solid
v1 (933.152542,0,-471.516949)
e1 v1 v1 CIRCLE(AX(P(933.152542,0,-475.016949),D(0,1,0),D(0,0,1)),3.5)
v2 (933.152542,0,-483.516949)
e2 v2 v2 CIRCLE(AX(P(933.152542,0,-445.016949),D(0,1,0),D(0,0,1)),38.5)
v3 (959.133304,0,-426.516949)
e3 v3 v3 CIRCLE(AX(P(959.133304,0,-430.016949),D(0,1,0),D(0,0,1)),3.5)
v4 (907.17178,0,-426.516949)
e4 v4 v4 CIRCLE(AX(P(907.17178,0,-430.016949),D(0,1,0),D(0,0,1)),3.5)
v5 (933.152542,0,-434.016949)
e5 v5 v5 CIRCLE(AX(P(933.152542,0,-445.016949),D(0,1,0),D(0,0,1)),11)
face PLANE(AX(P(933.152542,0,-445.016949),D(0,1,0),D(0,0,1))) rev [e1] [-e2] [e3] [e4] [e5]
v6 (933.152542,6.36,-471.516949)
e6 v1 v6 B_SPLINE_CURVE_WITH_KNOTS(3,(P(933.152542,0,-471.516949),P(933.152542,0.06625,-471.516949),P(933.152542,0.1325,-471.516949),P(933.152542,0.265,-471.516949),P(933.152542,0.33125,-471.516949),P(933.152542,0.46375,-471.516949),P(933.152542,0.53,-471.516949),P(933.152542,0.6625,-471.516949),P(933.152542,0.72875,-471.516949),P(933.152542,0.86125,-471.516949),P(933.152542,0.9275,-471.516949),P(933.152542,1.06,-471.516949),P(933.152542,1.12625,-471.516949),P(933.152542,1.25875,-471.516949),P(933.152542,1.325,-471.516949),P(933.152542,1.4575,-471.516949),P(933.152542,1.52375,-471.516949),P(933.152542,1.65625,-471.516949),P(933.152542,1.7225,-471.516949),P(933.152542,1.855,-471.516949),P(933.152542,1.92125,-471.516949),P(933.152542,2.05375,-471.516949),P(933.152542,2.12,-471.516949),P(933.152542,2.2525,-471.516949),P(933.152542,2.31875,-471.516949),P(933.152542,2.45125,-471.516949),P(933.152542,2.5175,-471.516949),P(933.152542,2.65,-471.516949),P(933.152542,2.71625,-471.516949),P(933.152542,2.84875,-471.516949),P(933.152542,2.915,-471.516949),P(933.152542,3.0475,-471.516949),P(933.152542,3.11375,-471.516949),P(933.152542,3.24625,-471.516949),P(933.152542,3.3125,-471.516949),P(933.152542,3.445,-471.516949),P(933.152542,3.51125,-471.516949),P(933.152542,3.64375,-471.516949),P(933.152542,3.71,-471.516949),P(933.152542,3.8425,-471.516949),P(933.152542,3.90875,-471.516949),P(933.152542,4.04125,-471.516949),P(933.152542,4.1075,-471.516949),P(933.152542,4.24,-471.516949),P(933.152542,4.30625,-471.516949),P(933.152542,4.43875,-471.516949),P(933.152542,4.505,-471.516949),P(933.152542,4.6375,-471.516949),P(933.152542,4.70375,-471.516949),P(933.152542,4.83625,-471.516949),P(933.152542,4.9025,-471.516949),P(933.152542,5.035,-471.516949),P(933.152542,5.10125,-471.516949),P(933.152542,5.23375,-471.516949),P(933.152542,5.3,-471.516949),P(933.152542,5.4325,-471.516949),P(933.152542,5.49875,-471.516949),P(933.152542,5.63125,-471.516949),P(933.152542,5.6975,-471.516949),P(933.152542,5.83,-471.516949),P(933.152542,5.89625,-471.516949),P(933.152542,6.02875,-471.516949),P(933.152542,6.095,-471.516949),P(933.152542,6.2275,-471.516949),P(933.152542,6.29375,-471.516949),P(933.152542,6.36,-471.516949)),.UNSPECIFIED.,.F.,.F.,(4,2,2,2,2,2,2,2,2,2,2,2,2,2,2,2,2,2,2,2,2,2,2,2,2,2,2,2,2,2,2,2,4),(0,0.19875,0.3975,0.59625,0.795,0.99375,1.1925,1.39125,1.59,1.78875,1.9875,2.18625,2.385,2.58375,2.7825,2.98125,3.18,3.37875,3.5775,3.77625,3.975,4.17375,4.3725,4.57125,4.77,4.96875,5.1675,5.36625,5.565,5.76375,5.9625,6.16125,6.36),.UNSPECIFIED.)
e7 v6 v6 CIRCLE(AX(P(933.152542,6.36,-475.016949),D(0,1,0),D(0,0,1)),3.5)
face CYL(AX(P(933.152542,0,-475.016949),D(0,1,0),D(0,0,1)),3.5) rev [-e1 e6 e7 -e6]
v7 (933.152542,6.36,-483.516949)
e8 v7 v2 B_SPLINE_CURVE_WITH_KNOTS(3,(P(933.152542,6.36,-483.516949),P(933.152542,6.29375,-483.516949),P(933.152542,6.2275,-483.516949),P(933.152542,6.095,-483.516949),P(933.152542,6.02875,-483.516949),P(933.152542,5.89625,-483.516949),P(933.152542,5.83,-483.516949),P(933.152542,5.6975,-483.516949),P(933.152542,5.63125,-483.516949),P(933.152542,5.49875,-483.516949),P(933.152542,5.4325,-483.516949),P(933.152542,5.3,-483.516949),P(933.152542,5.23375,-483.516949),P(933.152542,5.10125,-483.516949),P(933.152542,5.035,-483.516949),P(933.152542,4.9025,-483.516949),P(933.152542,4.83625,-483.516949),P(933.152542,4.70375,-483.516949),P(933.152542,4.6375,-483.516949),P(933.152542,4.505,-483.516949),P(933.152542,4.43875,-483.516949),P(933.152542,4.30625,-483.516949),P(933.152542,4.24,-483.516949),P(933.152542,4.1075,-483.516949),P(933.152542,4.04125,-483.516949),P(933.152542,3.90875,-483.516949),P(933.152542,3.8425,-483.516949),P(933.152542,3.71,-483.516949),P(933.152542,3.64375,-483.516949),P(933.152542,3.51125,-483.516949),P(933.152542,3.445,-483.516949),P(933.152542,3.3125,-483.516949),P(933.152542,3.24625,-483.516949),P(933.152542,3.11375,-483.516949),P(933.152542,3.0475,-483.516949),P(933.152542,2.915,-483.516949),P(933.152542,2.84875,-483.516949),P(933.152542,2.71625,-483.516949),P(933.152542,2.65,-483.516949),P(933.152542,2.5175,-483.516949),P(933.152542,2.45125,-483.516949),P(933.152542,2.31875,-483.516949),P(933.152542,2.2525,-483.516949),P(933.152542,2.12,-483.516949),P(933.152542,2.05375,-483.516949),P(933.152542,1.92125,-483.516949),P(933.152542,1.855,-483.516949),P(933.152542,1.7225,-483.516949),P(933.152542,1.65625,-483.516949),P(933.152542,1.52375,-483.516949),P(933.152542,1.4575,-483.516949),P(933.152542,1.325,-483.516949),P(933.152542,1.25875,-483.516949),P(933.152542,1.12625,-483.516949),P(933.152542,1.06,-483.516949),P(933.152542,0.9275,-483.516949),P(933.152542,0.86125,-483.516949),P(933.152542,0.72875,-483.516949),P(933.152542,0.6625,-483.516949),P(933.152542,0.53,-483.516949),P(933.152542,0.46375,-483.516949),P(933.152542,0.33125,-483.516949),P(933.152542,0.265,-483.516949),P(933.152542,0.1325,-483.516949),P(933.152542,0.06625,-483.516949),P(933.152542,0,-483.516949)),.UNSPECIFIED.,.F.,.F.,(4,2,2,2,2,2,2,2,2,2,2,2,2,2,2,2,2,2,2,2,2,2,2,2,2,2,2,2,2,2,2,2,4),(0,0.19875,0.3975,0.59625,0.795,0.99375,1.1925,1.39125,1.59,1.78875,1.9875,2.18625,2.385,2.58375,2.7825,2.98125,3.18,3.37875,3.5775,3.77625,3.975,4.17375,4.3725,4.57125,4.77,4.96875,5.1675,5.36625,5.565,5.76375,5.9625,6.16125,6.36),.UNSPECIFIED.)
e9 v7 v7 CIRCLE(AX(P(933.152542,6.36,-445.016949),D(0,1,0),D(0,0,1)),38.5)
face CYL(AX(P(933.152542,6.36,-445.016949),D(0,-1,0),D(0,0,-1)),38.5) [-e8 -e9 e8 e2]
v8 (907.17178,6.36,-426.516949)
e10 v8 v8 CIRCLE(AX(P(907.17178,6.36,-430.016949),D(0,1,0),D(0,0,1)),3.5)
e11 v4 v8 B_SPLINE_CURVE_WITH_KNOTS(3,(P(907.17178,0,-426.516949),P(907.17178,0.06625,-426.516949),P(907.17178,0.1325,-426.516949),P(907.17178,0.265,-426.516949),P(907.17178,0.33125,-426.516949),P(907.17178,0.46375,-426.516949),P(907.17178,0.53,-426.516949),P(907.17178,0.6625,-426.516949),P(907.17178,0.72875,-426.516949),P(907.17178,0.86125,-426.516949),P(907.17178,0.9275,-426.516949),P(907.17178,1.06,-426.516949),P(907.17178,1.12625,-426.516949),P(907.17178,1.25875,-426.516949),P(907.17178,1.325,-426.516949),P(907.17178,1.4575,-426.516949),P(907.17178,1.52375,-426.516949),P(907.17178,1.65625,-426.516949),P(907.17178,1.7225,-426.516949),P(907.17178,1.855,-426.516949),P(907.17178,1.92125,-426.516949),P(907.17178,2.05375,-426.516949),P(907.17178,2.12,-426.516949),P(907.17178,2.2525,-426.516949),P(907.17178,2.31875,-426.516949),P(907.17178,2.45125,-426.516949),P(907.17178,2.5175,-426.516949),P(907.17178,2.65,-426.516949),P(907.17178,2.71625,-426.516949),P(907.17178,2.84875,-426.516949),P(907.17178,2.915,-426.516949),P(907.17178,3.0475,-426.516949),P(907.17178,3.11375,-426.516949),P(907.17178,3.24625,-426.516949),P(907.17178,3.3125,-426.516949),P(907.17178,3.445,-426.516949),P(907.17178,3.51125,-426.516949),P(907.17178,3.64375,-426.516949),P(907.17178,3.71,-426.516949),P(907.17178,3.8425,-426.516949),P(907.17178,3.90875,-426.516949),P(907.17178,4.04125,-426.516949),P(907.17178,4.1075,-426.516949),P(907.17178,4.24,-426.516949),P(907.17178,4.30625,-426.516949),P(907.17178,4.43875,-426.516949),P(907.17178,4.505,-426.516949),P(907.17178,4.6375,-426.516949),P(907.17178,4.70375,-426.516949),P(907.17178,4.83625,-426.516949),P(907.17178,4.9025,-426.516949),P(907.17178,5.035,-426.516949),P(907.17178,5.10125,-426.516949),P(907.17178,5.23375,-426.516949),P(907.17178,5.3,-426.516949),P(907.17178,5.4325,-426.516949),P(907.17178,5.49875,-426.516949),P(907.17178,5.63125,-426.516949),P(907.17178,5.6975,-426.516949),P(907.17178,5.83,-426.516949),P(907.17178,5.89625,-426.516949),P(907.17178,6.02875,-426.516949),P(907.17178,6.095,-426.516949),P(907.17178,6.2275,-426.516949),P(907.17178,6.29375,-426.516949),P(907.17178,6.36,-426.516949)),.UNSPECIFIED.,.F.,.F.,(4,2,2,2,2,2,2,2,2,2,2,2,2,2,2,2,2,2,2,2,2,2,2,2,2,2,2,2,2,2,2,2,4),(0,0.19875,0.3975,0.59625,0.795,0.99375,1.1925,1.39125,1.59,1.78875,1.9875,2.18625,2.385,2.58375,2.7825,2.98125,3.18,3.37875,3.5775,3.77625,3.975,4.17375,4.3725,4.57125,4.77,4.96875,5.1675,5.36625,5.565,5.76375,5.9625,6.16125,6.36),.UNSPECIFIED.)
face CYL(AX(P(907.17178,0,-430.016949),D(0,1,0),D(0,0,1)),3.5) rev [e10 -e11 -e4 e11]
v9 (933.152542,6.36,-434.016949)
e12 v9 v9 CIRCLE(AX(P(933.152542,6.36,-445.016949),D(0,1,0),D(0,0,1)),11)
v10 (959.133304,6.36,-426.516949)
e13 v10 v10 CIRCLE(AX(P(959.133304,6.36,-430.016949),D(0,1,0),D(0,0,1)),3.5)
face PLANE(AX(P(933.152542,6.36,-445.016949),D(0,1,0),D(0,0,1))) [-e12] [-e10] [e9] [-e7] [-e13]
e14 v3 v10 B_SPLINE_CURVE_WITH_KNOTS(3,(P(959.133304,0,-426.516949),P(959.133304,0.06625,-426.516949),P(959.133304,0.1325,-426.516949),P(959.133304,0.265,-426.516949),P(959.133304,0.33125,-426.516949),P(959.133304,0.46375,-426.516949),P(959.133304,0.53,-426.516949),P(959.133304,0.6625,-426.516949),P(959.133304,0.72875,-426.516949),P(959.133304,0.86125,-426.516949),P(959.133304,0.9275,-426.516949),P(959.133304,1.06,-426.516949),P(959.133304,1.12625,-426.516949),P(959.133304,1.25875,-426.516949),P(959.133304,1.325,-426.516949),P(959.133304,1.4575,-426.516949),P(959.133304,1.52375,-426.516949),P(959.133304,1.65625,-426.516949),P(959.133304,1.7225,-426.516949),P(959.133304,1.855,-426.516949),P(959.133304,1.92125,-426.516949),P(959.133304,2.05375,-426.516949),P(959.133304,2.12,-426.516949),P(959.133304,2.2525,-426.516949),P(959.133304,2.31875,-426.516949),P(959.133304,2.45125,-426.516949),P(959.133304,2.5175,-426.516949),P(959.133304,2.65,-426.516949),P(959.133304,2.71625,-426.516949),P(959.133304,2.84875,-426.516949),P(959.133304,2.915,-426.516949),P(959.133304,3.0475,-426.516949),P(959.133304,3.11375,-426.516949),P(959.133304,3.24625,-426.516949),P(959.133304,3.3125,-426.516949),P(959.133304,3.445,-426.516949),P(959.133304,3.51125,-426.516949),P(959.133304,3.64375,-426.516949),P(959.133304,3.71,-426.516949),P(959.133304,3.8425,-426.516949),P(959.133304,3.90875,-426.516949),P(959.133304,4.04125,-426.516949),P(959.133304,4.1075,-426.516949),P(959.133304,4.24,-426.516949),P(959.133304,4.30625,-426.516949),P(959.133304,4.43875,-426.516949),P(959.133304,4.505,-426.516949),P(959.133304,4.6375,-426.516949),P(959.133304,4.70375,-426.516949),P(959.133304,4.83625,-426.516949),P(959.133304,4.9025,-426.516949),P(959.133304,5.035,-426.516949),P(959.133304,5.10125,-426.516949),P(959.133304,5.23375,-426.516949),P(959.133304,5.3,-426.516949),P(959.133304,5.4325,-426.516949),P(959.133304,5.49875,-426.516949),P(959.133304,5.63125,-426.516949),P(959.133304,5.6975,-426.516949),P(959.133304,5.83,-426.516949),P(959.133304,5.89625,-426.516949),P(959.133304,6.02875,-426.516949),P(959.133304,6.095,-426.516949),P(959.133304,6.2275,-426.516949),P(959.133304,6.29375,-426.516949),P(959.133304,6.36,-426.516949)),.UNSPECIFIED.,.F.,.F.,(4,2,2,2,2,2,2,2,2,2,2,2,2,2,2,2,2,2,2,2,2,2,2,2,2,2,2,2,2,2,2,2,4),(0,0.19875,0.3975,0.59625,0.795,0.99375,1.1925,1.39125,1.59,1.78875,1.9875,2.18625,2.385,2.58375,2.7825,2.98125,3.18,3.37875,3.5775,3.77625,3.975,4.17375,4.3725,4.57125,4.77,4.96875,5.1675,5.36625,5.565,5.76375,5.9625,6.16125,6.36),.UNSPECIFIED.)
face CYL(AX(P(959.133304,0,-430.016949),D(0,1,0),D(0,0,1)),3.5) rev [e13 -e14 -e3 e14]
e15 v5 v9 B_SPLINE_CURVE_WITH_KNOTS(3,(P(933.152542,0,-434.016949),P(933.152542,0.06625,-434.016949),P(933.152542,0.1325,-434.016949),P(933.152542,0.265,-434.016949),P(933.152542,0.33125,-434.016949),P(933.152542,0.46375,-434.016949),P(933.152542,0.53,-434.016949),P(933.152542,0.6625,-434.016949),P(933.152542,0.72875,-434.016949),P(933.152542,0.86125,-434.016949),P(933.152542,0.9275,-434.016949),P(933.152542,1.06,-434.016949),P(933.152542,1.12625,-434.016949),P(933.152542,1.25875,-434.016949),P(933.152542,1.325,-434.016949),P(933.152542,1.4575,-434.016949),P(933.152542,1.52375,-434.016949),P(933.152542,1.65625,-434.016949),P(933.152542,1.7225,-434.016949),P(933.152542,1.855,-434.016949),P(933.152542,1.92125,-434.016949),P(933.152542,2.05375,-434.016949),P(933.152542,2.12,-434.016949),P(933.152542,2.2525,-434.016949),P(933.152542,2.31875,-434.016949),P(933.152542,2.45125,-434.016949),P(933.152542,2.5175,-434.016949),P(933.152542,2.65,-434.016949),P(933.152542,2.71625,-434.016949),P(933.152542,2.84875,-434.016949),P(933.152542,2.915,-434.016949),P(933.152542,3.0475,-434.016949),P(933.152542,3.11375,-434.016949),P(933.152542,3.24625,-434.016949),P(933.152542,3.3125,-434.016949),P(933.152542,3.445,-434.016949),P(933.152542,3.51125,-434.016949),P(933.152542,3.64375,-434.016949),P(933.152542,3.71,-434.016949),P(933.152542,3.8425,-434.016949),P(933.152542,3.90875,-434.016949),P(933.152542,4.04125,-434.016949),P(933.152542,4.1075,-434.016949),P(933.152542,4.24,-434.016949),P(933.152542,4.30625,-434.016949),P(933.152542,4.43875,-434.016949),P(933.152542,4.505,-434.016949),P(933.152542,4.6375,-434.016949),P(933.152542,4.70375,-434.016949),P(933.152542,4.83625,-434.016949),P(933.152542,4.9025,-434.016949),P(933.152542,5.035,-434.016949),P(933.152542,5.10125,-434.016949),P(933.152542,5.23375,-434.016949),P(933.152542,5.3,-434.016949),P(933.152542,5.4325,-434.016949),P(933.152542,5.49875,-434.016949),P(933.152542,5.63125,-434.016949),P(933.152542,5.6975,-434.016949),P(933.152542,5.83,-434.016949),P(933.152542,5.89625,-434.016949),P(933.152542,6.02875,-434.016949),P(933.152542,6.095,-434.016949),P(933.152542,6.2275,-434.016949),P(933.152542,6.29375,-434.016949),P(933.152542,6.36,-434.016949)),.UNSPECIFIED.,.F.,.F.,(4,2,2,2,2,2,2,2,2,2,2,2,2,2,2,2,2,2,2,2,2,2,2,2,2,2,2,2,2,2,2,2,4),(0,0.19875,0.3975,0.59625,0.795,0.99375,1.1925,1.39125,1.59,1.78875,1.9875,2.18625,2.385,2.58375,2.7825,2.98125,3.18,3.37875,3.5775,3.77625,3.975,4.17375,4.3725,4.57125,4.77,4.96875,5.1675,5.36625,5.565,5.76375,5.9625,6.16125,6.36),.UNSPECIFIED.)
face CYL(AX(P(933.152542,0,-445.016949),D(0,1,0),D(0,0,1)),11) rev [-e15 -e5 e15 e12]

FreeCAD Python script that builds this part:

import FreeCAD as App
import Part
import Sketcher
from FreeCAD import Vector
Q = App.Units.Quantity

doc = App.newDocument("Part")
params = doc.addObject("Spreadsheet::Sheet", "Params")
for row, (alias, value) in enumerate([
    ("sketch1_diameter", "77 mm"),
    ("pad1_length", "6.36 mm"),
    ("sketch2_diameter", "7 mm"),
    ("sketch3_diameter", "22 mm"),
], start=1):
    params.set(f"A{row}", alias)
    params.set(f"B{row}", "=" + value)
    params.setAlias(f"B{row}", alias)

body = doc.addObject("PartDesign::Body", "Body")

sketch1 = doc.addObject("Sketcher::SketchObject", "Sketch")
body.addObject(sketch1)
sketch1.AttachmentSupport = (doc.XZ_Plane, [""])
sketch1.MapMode = "FlatFace"
sketch1.addGeometry(Part.Circle(Vector(933, -445, 0), Vector(0, 0, 1), 38), False)
sketch1.addConstraint(Sketcher.Constraint("Diameter", 0, Q("77 mm")))
sketch1.addConstraint(Sketcher.Constraint("DistanceY", 0, 3, -1, 1, Q("445.016949 mm")))
sketch1.addConstraint(Sketcher.Constraint("DistanceX", -1, 1, 0, 3, Q("933.152542 mm")))
sketch1.setExpression("Constraints[0]", "Params.sketch1_diameter")
pad1 = doc.addObject("PartDesign::Pad", "Pad")
body.addObject(pad1)
pad1.Profile = sketch1
pad1.setExpression("Length", "Params.pad1_length")
pad1.Reversed = True

sketch2 = doc.addObject("Sketcher::SketchObject", "Sketch001")
body.addObject(sketch2)
sketch2.AttachmentSupport = (doc.XZ_Plane, [""])
sketch2.MapMode = "FlatFace"
sketch2.AttachmentOffset = App.Placement(Vector(0, 0, -6.36), App.Rotation())
sketch2.addGeometry(Part.Circle(Vector(933.2, -475, 0), Vector(0, 0, 1), 3.5), False)
sketch2.addGeometry(Part.Circle(Vector(-55.2, 1045.6, 0), Vector(0, 0, 1), 3.5), False)
sketch2.addGeometry(Part.Circle(Vector(-878, -570.6, 0), Vector(0, 0, 1), 3.5), False)
sketch2.addGeometry(Part.Circle(Vector(959.1, -430, 0), Vector(0, 0, 1), 3.5), False)
sketch2.addGeometry(Part.Circle(Vector(907.2, -430, 0), Vector(0, 0, 1), 3.5), False)
sketch2.addConstraint(Sketcher.Constraint("Equal", 0, 1))
sketch2.addConstraint(Sketcher.Constraint("Equal", 1, 2))
sketch2.addConstraint(Sketcher.Constraint("Equal", 2, 3))
sketch2.addConstraint(Sketcher.Constraint("Equal", 3, 4))
sketch2.addConstraint(Sketcher.Constraint("Horizontal", 3, 3, 4, 3))
sketch2.addConstraint(Sketcher.Constraint("Diameter", 0, Q("7 mm")))
sketch2.addConstraint(Sketcher.Constraint("DistanceY", 0, 3, 3, 3, Q("45 mm")))
sketch2.addConstraint(Sketcher.Constraint("DistanceY", 0, 3, -1, 1, Q("475.016949 mm")))
sketch2.addConstraint(Sketcher.Constraint("DistanceY", -1, 1, 1, 3, Q("1045.642282 mm")))
sketch2.addConstraint(Sketcher.Constraint("DistanceX", -1, 1, 4, 3, Q("907.17178 mm")))
sketch2.addConstraint(Sketcher.Constraint("DistanceX", 1, 3, 0, 3, Q("988.352068 mm")))
sketch2.addConstraint(Sketcher.Constraint("DistanceX", 2, 3, 1, 3, Q("822.75349 mm")))
sketch2.addConstraint(Sketcher.Constraint("DistanceX", 1, 3, 3, 3, Q("1014.33283 mm")))
sketch2.addConstraint(Sketcher.Constraint("DistanceX", -1, 1, 0, 3, Q("933.152542 mm")))
sketch2.addConstraint(Sketcher.Constraint("DistanceY", 2, 3, -1, 1, Q("570.625333 mm")))
sketch2.setExpression("Constraints[5]", "Params.sketch2_diameter")
pocket1 = doc.addObject("PartDesign::Pocket", "Pocket")
body.addObject(pocket1)
pocket1.Profile = sketch2
pocket1.Type = "ThroughAll"
pocket1.Reversed = True

sketch3 = doc.addObject("Sketcher::SketchObject", "Sketch002")
body.addObject(sketch3)
sketch3.AttachmentSupport = (doc.XZ_Plane, [""])
sketch3.MapMode = "FlatFace"
sketch3.AttachmentOffset = App.Placement(Vector(0, 0, -6.36), App.Rotation())
sketch3.addGeometry(Part.Circle(Vector(933, -445, 0), Vector(0, 0, 1), 11), False)
sketch3.addConstraint(Sketcher.Constraint("Diameter", 0, Q("22 mm")))
sketch3.addConstraint(Sketcher.Constraint("DistanceY", 0, 3, -1, 1, Q("445.016949 mm")))
sketch3.addConstraint(Sketcher.Constraint("DistanceX", -1, 1, 0, 3, Q("933.152542 mm")))
sketch3.setExpression("Constraints[0]", "Params.sketch3_diameter")
pocket2 = doc.addObject("PartDesign::Pocket", "Pocket001")
body.addObject(pocket2)
pocket2.Profile = sketch3
pocket2.Type = "ThroughAll"
pocket2.Reversed = True

doc.recompute()
